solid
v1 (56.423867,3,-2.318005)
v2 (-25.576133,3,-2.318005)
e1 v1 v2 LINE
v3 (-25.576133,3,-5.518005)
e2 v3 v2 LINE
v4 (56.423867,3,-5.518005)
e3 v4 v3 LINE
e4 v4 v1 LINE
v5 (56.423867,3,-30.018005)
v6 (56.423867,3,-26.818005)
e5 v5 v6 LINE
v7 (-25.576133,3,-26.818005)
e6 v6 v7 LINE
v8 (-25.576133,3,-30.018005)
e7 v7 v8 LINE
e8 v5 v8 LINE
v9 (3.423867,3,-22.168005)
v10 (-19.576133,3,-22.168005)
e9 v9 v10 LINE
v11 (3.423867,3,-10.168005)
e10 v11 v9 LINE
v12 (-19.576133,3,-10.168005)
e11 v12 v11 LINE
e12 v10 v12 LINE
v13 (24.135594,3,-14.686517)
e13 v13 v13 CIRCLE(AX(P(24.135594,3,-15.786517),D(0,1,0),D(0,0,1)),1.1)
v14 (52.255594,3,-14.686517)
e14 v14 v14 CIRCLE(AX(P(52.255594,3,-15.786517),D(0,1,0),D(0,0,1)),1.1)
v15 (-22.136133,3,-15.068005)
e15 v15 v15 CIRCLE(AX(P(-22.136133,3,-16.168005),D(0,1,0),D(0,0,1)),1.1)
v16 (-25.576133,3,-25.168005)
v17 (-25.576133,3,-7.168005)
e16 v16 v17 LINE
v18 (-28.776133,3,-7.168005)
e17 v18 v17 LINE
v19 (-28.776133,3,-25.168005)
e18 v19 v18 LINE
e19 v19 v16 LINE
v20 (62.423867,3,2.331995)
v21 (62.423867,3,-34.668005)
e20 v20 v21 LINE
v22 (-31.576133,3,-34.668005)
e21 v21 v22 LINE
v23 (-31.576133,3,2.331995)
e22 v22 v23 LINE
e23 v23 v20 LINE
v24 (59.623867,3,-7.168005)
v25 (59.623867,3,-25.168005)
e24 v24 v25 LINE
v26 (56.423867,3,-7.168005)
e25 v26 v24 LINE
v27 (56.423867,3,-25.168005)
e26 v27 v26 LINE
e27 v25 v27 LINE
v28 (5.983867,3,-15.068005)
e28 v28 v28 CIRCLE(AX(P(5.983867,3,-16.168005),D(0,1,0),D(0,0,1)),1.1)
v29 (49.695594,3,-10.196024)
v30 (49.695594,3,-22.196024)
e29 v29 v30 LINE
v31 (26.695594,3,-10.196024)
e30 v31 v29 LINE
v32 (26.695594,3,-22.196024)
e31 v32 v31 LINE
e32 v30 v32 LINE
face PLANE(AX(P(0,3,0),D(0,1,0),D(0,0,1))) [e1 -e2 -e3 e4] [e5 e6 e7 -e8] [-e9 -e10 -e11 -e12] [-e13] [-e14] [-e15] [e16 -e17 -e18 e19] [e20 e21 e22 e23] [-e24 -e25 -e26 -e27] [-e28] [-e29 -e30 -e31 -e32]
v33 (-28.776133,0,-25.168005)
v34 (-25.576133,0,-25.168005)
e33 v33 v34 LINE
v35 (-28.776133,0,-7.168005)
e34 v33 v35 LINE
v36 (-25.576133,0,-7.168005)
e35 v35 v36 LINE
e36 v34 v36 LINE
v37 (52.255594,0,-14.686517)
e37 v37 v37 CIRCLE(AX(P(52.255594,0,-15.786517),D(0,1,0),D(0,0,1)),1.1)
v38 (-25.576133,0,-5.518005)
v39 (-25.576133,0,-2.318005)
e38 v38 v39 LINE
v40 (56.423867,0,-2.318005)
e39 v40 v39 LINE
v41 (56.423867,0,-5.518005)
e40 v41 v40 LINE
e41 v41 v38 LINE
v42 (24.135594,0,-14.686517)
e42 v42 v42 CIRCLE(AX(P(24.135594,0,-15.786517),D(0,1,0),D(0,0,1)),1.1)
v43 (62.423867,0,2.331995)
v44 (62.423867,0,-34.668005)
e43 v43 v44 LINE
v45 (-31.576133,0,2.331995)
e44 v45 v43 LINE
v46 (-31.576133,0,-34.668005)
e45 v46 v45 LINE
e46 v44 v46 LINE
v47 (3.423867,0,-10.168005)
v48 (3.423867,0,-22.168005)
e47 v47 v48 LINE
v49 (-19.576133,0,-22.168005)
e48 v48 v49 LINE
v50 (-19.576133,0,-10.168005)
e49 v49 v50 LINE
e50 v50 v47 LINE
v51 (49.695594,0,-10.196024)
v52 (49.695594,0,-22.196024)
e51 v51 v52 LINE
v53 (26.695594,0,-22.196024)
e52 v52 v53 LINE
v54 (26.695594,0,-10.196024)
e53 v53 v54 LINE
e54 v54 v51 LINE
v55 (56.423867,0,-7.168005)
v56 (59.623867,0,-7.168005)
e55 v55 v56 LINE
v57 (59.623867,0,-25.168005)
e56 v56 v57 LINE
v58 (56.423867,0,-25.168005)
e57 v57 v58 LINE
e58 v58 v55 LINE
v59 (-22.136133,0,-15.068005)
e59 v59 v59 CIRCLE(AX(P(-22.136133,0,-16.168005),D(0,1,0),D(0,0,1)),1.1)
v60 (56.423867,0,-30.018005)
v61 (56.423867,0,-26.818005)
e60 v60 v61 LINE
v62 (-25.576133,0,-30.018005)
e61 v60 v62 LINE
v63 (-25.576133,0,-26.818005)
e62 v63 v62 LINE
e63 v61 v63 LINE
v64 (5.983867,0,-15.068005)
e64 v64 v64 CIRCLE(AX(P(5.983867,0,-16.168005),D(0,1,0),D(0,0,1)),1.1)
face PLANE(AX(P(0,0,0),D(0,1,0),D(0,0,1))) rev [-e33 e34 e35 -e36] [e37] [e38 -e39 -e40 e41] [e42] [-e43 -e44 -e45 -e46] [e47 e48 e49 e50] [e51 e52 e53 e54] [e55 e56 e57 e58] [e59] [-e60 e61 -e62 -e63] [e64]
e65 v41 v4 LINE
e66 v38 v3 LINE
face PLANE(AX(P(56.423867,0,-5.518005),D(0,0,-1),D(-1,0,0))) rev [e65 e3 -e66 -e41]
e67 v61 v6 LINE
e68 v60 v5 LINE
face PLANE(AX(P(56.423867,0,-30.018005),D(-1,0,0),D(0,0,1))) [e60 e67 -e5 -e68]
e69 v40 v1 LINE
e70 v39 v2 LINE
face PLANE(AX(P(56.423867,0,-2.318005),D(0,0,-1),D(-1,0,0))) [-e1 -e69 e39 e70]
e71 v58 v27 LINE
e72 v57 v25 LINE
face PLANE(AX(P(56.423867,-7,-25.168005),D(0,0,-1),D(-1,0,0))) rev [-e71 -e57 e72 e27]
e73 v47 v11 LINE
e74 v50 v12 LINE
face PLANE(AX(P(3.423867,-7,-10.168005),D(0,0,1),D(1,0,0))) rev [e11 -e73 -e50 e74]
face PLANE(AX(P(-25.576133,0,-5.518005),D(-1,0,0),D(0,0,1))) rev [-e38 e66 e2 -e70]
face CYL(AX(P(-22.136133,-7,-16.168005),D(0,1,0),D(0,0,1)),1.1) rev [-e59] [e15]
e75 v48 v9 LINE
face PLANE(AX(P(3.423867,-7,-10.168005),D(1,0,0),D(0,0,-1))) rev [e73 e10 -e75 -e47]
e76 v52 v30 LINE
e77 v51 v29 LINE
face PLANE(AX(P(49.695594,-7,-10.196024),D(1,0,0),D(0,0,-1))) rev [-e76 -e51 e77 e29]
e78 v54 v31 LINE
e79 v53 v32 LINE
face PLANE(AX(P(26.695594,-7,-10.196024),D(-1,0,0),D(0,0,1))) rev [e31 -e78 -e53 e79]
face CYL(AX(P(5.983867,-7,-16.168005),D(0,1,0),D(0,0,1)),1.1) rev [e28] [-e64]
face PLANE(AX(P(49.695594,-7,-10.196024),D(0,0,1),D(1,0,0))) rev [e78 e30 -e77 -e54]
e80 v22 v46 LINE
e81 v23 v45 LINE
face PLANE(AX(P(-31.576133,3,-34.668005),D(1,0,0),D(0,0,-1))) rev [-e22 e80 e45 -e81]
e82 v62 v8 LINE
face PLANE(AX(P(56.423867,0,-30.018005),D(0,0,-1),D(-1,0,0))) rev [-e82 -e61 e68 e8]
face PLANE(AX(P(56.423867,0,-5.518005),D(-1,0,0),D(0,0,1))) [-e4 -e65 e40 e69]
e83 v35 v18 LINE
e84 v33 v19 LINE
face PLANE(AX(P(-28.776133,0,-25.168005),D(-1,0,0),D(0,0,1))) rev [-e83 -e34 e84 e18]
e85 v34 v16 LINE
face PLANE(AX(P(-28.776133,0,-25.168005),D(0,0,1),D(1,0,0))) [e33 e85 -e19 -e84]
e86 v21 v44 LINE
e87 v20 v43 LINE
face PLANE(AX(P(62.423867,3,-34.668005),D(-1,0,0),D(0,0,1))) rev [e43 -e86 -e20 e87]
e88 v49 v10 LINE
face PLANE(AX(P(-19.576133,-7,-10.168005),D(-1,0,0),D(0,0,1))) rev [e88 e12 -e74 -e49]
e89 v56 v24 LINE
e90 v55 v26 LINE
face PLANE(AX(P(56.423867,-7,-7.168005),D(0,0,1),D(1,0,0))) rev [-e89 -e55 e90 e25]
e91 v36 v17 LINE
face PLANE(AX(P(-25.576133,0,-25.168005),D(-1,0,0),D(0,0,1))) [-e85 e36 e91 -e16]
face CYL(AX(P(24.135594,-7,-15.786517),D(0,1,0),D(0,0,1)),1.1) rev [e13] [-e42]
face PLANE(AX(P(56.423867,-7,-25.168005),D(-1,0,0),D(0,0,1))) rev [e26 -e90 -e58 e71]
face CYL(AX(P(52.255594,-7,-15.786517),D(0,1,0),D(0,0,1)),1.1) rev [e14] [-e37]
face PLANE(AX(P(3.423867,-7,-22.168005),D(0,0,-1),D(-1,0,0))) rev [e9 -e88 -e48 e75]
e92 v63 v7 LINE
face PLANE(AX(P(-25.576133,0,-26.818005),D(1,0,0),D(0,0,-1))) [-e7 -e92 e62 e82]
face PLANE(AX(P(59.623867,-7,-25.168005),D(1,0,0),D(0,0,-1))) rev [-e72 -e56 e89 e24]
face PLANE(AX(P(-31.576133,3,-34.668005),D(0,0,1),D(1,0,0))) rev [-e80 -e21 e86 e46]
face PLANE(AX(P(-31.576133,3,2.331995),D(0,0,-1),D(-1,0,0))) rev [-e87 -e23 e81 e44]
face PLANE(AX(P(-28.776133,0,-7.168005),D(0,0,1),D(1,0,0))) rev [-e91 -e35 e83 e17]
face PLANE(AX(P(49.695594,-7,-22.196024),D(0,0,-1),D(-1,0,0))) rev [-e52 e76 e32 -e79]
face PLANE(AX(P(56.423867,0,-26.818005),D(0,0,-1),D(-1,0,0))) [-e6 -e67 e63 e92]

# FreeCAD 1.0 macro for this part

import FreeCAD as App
import Part
import Sketcher

V = App.Vector
Q = App.Units.Quantity


def add_polygon(sketch, points):
    """Adds a closed chain of lines whose ends are joined by coincident constraints."""
    first, n = sketch.GeometryCount, len(points)
    for a, b in zip(points, points[1:] + points[:1]):
        sketch.addGeometry(Part.LineSegment(App.Vector(*a, 0), App.Vector(*b, 0)), False)
    for i in range(n):
        sketch.addConstraint(Sketcher.Constraint("Coincident", first + i, 2, first + (i + 1) % n, 1))

doc = App.newDocument("Part")
body = doc.addObject("PartDesign::Body", "Body")

sketch1 = doc.addObject("Sketcher::SketchObject", "Sketch")
body.addObject(sketch1)
sketch1.AttachmentSupport = (doc.XZ_Plane, [""])
sketch1.MapMode = "FlatFace"
add_polygon(sketch1, [(-32, -35), (-32, 2), (62, 2), (62, -35)])
sketch1.addConstraint(Sketcher.Constraint("Vertical", 0))
sketch1.addConstraint(Sketcher.Constraint("Horizontal", 1))
sketch1.addConstraint(Sketcher.Constraint("Vertical", 2))
sketch1.addConstraint(Sketcher.Constraint("Horizontal", 3))
sketch1.addConstraint(Sketcher.Constraint("DistanceX", 1, 1, 1, 2, Q("94 mm")))
sketch1.addConstraint(Sketcher.Constraint("DistanceY", 0, 1, 0, 2, Q("37 mm")))
sketch1.addConstraint(Sketcher.Constraint("DistanceX", 0, 2, -1, 1, Q("31.576133 mm")))
sketch1.addConstraint(Sketcher.Constraint("DistanceY", -1, 1, 0, 2, Q("2.331995 mm")))
pad1 = doc.addObject("PartDesign::Pad", "Pad")
body.addObject(pad1)
pad1.Profile = sketch1
pad1.Length = 3
pad1.Reversed = True

sketch2 = doc.addObject("Sketcher::SketchObject", "Sketch001")
body.addObject(sketch2)
sketch2.AttachmentSupport = (doc.XZ_Plane, [""])
sketch2.MapMode = "FlatFace"
sketch2.AttachmentOffset = App.Placement(V(0, 0, -3), App.Rotation())
add_polygon(sketch2, [(-25.6, -5.5), (-25.6, -2.3), (56.4, -2.3), (56.4, -5.5)])
add_polygon(sketch2, [(-25.6, -30), (-25.6, -26.8), (56.4, -26.8), (56.4, -30)])
add_polygon(sketch2, [(-28.8, -25.2), (-28.8, -7.2), (-25.6, -7.2), (-25.6, -25.2)])
sketch2.addConstraint(Sketcher.Constraint("Vertical", 0))
sketch2.addConstraint(Sketcher.Constraint("Horizontal", 1))
sketch2.addConstraint(Sketcher.Constraint("Vertical", 2))
sketch2.addConstraint(Sketcher.Constraint("Horizontal", 3))
sketch2.addConstraint(Sketcher.Constraint("Vertical", 4))
sketch2.addConstraint(Sketcher.Constraint("Horizontal", 5))
sketch2.addConstraint(Sketcher.Constraint("Vertical", 6))
sketch2.addConstraint(Sketcher.Constraint("Horizontal", 7))
sketch2.addConstraint(Sketcher.Constraint("Vertical", 8))
sketch2.addConstraint(Sketcher.Constraint("Horizontal", 9))
sketch2.addConstraint(Sketcher.Constraint("Vertical", 10))
sketch2.addConstraint(Sketcher.Constraint("Horizontal", 11))
sketch2.addConstraint(Sketcher.Constraint("Vertical", 3, 2, 4, 2))
sketch2.addConstraint(Sketcher.Constraint("Vertical", 2, 2, 5, 2))
sketch2.addConstraint(Sketcher.Constraint("Vertical", 7, 2, 9, 2))
sketch2.addConstraint(Sketcher.Constraint("Equal", 11, 0))
sketch2.addConstraint(Sketcher.Constraint("Equal", 2, 4))
sketch2.addConstraint(Sketcher.Constraint("DistanceX", 1, 1, 1, 2, Q("82 mm")))
sketch2.addConstraint(Sketcher.Constraint("DistanceY", 8, 1, 8, 2, Q("18 mm")))
sketch2.addConstraint(Sketcher.Constraint("DistanceX", 9, 1, 9, 2, Q("3.2 mm")))
sketch2.addConstraint(Sketcher.Constraint("DistanceY", 4, 2, 3, 2, Q("21.3 mm")))
sketch2.addConstraint(Sketcher.Constraint("DistanceY", 8, 2, 3, 2, Q("1.65 mm")))
sketch2.addConstraint(Sketcher.Constraint("DistanceX", 0, 2, -1, 1, Q("25.576133 mm")))
sketch2.addConstraint(Sketcher.Constraint("DistanceY", 0, 2, -1, 1, Q("2.318005 mm")))
pocket1 = doc.addObject("PartDesign::Pocket", "Pocket")
body.addObject(pocket1)
pocket1.Profile = sketch2
pocket1.Length = 3
pocket1.Reversed = True

sketch3 = doc.addObject("Sketcher::SketchObject", "Sketch002")
body.addObject(sketch3)
sketch3.AttachmentSupport = (doc.XZ_Plane, [""])
sketch3.MapMode = "FlatFace"
sketch3.AttachmentOffset = App.Placement(V(0, 0, -3), App.Rotation())
sketch3.addGeometry(Part.Circle(V(6, -16.2, 0), V(0, 0, 1), 1.1), False)
sketch3.addGeometry(Part.Circle(V(-22.1, -16.2, 0), V(0, 0, 1), 1.1), False)
sketch3.addGeometry(Part.Circle(V(52.3, -15.8, 0), V(0, 0, 1), 1.1), False)
sketch3.addGeometry(Part.Circle(V(24.1, -15.8, 0), V(0, 0, 1), 1.1), False)
add_polygon(sketch3, [(-25.6, -5.5), (-25.6, -2.3), (56.4, -2.3), (56.4, -5.5)])
add_polygon(sketch3, [(-25.6, -30), (-25.6, -26.8), (56.4, -26.8), (56.4, -30)])
add_polygon(sketch3, [(-28.8, -25.2), (-28.8, -7.2), (-25.6, -7.2), (-25.6, -25.2)])
add_polygon(sketch3, [(-19.6, -22.2), (-19.6, -10.2), (3.4, -10.2), (3.4, -22.2)])
add_polygon(sketch3, [(56.4, -25.2), (56.4, -7.2), (59.6, -7.2), (59.6, -25.2)])
add_polygon(sketch3, [(26.7, -22.2), (26.7, -10.2), (49.7, -10.2), (49.7, -22.2)])
sketch3.addConstraint(Sketcher.Constraint("Vertical", 4))
sketch3.addConstraint(Sketcher.Constraint("Horizontal", 5))
sketch3.addConstraint(Sketcher.Constraint("Vertical", 6))
sketch3.addConstraint(Sketcher.Constraint("Horizontal", 7))
sketch3.addConstraint(Sketcher.Constraint("Vertical", 8))
sketch3.addConstraint(Sketcher.Constraint("Horizontal", 9))
sketch3.addConstraint(Sketcher.Constraint("Vertical", 10))
sketch3.addConstraint(Sketcher.Constraint("Horizontal", 11))
sketch3.addConstraint(Sketcher.Constraint("Vertical", 12))
sketch3.addConstraint(Sketcher.Constraint("Horizontal", 13))
sketch3.addConstraint(Sketcher.Constraint("Vertical", 14))
sketch3.addConstraint(Sketcher.Constraint("Horizontal", 15))
sketch3.addConstraint(Sketcher.Constraint("Vertical", 16))
sketch3.addConstraint(Sketcher.Constraint("Horizontal", 17))
sketch3.addConstraint(Sketcher.Constraint("Vertical", 18))
sketch3.addConstraint(Sketcher.Constraint("Horizontal", 19))
sketch3.addConstraint(Sketcher.Constraint("Vertical", 20))
sketch3.addConstraint(Sketcher.Constraint("Horizontal", 21))
sketch3.addConstraint(Sketcher.Constraint("Vertical", 22))
sketch3.addConstraint(Sketcher.Constraint("Horizontal", 23))
sketch3.addConstraint(Sketcher.Constraint("Vertical", 24))
sketch3.addConstraint(Sketcher.Constraint("Horizontal", 25))
sketch3.addConstraint(Sketcher.Constraint("Vertical", 26))
sketch3.addConstraint(Sketcher.Constraint("Horizontal", 27))
sketch3.addConstraint(Sketcher.Constraint("Equal", 0, 1))
sketch3.addConstraint(Sketcher.Constraint("Equal", 1, 2))
sketch3.addConstraint(Sketcher.Constraint("Equal", 2, 3))
sketch3.addConstraint(Sketcher.Constraint("Horizontal", 0, 3, 1, 3))
sketch3.addConstraint(Sketcher.Constraint("Horizontal", 2, 3, 3, 3))
sketch3.addConstraint(Sketcher.Constraint("Horizontal", 13, 2, 20, 2))
sketch3.addConstraint(Sketcher.Constraint("Horizontal", 15, 2, 22, 2))
sketch3.addConstraint(Sketcher.Constraint("Vertical", 7, 2, 8, 2))
sketch3.addConstraint(Sketcher.Constraint("Vertical", 6, 2, 9, 2))
sketch3.addConstraint(Sketcher.Constraint("Vertical", 11, 2, 13, 2))
sketch3.addConstraint(Sketcher.Constraint("Vertical", 10, 2, 20, 2))
sketch3.addConstraint(Sketcher.Constraint("Equal", 15, 21))
sketch3.addConstraint(Sketcher.Constraint("Equal", 19, 25))
sketch3.addConstraint(Sketcher.Constraint("Equal", 23, 4))
sketch3.addConstraint(Sketcher.Constraint("Equal", 6, 8))
sketch3.addConstraint(Sketcher.Constraint("Equal", 18, 24))
sketch3.addConstraint(Sketcher.Constraint("Diameter", 0, Q("2.2 mm")))
sketch3.addConstraint(Sketcher.Constraint("DistanceX", 5, 1, 5, 2, Q("82 mm")))
sketch3.addConstraint(Sketcher.Constraint("DistanceX", 17, 1, 17, 2, Q("23 mm")))
sketch3.addConstraint(Sketcher.Constraint("DistanceY", 12, 1, 12, 2, Q("18 mm")))
sketch3.addConstraint(Sketcher.Constraint("DistanceY", 16, 1, 16, 2, Q("12 mm")))
sketch3.addConstraint(Sketcher.Constraint("DistanceX", 13, 1, 13, 2, Q("3.2 mm")))
sketch3.addConstraint(Sketcher.Constraint("DistanceY", 1, 3, 12, 2, Q("9 mm")))
sketch3.addConstraint(Sketcher.Constraint("DistanceY", 1, 3, 16, 2, Q("6 mm")))
sketch3.addConstraint(Sketcher.Constraint("DistanceX", 13, 2, 16, 2, Q("6 mm")))
sketch3.addConstraint(Sketcher.Constraint("DistanceY", 8, 2, 7, 2, Q("21.3 mm")))
sketch3.addConstraint(Sketcher.Constraint("DistanceX", 1, 3, 0, 3, Q("28.12 mm")))
sketch3.addConstraint(Sketcher.Constraint("DistanceX", 3, 3, 2, 3, Q("28.12 mm")))
sketch3.addConstraint(Sketcher.Constraint("DistanceX", 4, 2, 1, 3, Q("3.44 mm")))
sketch3.addConstraint(Sketcher.Constraint("DistanceY", 1, 3, 4, 2, Q("13.85 mm")))
sketch3.addConstraint(Sketcher.Constraint("DistanceX", 3, 3, 24, 2, Q("2.56 mm")))
sketch3.addConstraint(Sketcher.Constraint("DistanceY", 0, 3, 2, 3, Q("0.381488 mm")))
sketch3.addConstraint(Sketcher.Constraint("DistanceY", 0, 3, 24, 2, Q("5.971981 mm")))
sketch3.addConstraint(Sketcher.Constraint("DistanceX", -1, 1, 0, 3, Q("5.983867 mm")))
sketch3.addConstraint(Sketcher.Constraint("DistanceY", 0, 3, -1, 1, Q("16.168005 mm")))
sketch3.addConstraint(Sketcher.Constraint("DistanceX", -1, 1, 2, 3, Q("52.255594 mm")))
pocket2 = doc.addObject("PartDesign::Pocket", "Pocket001")
body.addObject(pocket2)
pocket2.Profile = sketch3
pocket2.Length = 10
pocket2.Reversed = True

doc.recompute()
